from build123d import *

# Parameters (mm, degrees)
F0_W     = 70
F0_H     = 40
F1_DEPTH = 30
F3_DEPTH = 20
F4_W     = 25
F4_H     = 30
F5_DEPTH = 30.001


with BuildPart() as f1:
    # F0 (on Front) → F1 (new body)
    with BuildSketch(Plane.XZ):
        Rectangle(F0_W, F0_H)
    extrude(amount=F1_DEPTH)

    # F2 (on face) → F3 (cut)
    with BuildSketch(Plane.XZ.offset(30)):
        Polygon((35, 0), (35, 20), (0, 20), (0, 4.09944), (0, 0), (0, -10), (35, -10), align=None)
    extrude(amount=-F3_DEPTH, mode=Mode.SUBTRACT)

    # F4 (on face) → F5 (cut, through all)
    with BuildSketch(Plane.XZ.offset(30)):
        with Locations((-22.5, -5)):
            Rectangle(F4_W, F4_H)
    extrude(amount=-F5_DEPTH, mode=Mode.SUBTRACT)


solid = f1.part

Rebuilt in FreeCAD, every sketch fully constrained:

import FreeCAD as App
import Part
import Sketcher
from FreeCAD import Vector
Q = App.Units.Quantity

doc = App.newDocument("Part")
body = doc.addObject("PartDesign::Body", "Body")

# Sketch on XZ plane
sketch1 = body.newObject("Sketcher::SketchObject", "Sketch")
sketch1.AttachmentSupport = (doc.getObject("XZ_Plane"), [""])
sketch1.MapMode = "FlatFace"
sketch1.addGeometry([
    Part.LineSegment(Vector(-35, 20, 0), Vector(-35, -20, 0)),
    Part.LineSegment(Vector(-35, -20, 0), Vector(35, -20, 0)),
    Part.LineSegment(Vector(35, -20, 0), Vector(35, 20, 0)),
    Part.LineSegment(Vector(35, 20, 0), Vector(-35, 20, 0)),
], False)
sketch1.addConstraint([
    Sketcher.Constraint("Coincident", 0, 2, 1, 1),
    Sketcher.Constraint("Coincident", 1, 2, 2, 1),
    Sketcher.Constraint("Coincident", 2, 2, 3, 1),
    Sketcher.Constraint("Coincident", 3, 2, 0, 1),
    Sketcher.Constraint("Vertical", 0),
    Sketcher.Constraint("Horizontal", 1),
    Sketcher.Constraint("Vertical", 2),
    Sketcher.Constraint("Horizontal", 3),
    Sketcher.Constraint("Symmetric", 0, 2, 2, 2, -1, 1),
    Sketcher.Constraint("DistanceX", 1, 1, 1, 2, Q("70 mm")),
    Sketcher.Constraint("DistanceY", 0, 2, 0, 1, Q("40 mm")),
])
pad1 = body.newObject("PartDesign::Pad", "Pad")
pad1.Profile = sketch1
pad1.Length = 30

# Sketch on XZ plane
sketch2 = body.newObject("Sketcher::SketchObject", "Sketch001")
sketch2.AttachmentSupport = (doc.getObject("XZ_Plane"), [""])
sketch2.MapMode = "FlatFace"
sketch2.AttachmentOffset = App.Placement(Vector(0, 0, 30), App.Rotation())
sketch2.addGeometry([
    Part.LineSegment(Vector(35, 20, 0), Vector(0, 20, 0)),
    Part.LineSegment(Vector(0, 20, 0), Vector(0, -10, 0)),
    Part.LineSegment(Vector(0, -10, 0), Vector(35, -10, 0)),
    Part.LineSegment(Vector(35, -10, 0), Vector(35, 20, 0)),
], False)
sketch2.addConstraint([
    Sketcher.Constraint("Coincident", 0, 2, 1, 1),
    Sketcher.Constraint("Coincident", 1, 2, 2, 1),
    Sketcher.Constraint("Coincident", 2, 2, 3, 1),
    Sketcher.Constraint("Coincident", 3, 2, 0, 1),
    Sketcher.Constraint("Horizontal", 0),
    Sketcher.Constraint("Vertical", 1),
    Sketcher.Constraint("Horizontal", 2),
    Sketcher.Constraint("Vertical", 3),
    Sketcher.Constraint("PointOnObject", 0, 2, -2),
    Sketcher.Constraint("DistanceX", 0, 2, 0, 1, Q("35 mm")),
    Sketcher.Constraint("DistanceY", 1, 2, 1, 1, Q("30 mm")),
    Sketcher.Constraint("DistanceY", -1, 1, 0, 2, Q("20 mm")),
])
pocket1 = body.newObject("PartDesign::Pocket", "Pocket")
pocket1.Profile = sketch2
pocket1.Length = 20

# Sketch on XZ plane
sketch3 = body.newObject("Sketcher::SketchObject", "Sketch002")
sketch3.AttachmentSupport = (doc.getObject("XZ_Plane"), [""])
sketch3.MapMode = "FlatFace"
sketch3.AttachmentOffset = App.Placement(Vector(0, 0, 30), App.Rotation())
sketch3.addGeometry([
    Part.LineSegment(Vector(-35, 10, 0), Vector(-35, -20, 0)),
    Part.LineSegment(Vector(-35, -20, 0), Vector(-10, -20, 0)),
    Part.LineSegment(Vector(-10, -20, 0), Vector(-10, 10, 0)),
    Part.LineSegment(Vector(-10, 10, 0), Vector(-35, 10, 0)),
], False)
sketch3.addConstraint([
    Sketcher.Constraint("Coincident", 0, 2, 1, 1),
    Sketcher.Constraint("Coincident", 1, 2, 2, 1),
    Sketcher.Constraint("Coincident", 2, 2, 3, 1),
    Sketcher.Constraint("Coincident", 3, 2, 0, 1),
    Sketcher.Constraint("Vertical", 0),
    Sketcher.Constraint("Horizontal", 1),
    Sketcher.Constraint("Vertical", 2),
    Sketcher.Constraint("Horizontal", 3),
    Sketcher.Constraint("DistanceX", 1, 1, 1, 2, Q("25 mm")),
    Sketcher.Constraint("DistanceY", 0, 2, 0, 1, Q("30 mm")),
    Sketcher.Constraint("DistanceX", 0, 2, -1, 1, Q("35 mm")),
    Sketcher.Constraint("DistanceY", 0, 2, -1, 1, Q("20 mm")),
])
pocket2 = body.newObject("PartDesign::Pocket", "Pocket001")
pocket2.Profile = sketch3
pocket2.Type = "ThroughAll"

doc.recompute()
